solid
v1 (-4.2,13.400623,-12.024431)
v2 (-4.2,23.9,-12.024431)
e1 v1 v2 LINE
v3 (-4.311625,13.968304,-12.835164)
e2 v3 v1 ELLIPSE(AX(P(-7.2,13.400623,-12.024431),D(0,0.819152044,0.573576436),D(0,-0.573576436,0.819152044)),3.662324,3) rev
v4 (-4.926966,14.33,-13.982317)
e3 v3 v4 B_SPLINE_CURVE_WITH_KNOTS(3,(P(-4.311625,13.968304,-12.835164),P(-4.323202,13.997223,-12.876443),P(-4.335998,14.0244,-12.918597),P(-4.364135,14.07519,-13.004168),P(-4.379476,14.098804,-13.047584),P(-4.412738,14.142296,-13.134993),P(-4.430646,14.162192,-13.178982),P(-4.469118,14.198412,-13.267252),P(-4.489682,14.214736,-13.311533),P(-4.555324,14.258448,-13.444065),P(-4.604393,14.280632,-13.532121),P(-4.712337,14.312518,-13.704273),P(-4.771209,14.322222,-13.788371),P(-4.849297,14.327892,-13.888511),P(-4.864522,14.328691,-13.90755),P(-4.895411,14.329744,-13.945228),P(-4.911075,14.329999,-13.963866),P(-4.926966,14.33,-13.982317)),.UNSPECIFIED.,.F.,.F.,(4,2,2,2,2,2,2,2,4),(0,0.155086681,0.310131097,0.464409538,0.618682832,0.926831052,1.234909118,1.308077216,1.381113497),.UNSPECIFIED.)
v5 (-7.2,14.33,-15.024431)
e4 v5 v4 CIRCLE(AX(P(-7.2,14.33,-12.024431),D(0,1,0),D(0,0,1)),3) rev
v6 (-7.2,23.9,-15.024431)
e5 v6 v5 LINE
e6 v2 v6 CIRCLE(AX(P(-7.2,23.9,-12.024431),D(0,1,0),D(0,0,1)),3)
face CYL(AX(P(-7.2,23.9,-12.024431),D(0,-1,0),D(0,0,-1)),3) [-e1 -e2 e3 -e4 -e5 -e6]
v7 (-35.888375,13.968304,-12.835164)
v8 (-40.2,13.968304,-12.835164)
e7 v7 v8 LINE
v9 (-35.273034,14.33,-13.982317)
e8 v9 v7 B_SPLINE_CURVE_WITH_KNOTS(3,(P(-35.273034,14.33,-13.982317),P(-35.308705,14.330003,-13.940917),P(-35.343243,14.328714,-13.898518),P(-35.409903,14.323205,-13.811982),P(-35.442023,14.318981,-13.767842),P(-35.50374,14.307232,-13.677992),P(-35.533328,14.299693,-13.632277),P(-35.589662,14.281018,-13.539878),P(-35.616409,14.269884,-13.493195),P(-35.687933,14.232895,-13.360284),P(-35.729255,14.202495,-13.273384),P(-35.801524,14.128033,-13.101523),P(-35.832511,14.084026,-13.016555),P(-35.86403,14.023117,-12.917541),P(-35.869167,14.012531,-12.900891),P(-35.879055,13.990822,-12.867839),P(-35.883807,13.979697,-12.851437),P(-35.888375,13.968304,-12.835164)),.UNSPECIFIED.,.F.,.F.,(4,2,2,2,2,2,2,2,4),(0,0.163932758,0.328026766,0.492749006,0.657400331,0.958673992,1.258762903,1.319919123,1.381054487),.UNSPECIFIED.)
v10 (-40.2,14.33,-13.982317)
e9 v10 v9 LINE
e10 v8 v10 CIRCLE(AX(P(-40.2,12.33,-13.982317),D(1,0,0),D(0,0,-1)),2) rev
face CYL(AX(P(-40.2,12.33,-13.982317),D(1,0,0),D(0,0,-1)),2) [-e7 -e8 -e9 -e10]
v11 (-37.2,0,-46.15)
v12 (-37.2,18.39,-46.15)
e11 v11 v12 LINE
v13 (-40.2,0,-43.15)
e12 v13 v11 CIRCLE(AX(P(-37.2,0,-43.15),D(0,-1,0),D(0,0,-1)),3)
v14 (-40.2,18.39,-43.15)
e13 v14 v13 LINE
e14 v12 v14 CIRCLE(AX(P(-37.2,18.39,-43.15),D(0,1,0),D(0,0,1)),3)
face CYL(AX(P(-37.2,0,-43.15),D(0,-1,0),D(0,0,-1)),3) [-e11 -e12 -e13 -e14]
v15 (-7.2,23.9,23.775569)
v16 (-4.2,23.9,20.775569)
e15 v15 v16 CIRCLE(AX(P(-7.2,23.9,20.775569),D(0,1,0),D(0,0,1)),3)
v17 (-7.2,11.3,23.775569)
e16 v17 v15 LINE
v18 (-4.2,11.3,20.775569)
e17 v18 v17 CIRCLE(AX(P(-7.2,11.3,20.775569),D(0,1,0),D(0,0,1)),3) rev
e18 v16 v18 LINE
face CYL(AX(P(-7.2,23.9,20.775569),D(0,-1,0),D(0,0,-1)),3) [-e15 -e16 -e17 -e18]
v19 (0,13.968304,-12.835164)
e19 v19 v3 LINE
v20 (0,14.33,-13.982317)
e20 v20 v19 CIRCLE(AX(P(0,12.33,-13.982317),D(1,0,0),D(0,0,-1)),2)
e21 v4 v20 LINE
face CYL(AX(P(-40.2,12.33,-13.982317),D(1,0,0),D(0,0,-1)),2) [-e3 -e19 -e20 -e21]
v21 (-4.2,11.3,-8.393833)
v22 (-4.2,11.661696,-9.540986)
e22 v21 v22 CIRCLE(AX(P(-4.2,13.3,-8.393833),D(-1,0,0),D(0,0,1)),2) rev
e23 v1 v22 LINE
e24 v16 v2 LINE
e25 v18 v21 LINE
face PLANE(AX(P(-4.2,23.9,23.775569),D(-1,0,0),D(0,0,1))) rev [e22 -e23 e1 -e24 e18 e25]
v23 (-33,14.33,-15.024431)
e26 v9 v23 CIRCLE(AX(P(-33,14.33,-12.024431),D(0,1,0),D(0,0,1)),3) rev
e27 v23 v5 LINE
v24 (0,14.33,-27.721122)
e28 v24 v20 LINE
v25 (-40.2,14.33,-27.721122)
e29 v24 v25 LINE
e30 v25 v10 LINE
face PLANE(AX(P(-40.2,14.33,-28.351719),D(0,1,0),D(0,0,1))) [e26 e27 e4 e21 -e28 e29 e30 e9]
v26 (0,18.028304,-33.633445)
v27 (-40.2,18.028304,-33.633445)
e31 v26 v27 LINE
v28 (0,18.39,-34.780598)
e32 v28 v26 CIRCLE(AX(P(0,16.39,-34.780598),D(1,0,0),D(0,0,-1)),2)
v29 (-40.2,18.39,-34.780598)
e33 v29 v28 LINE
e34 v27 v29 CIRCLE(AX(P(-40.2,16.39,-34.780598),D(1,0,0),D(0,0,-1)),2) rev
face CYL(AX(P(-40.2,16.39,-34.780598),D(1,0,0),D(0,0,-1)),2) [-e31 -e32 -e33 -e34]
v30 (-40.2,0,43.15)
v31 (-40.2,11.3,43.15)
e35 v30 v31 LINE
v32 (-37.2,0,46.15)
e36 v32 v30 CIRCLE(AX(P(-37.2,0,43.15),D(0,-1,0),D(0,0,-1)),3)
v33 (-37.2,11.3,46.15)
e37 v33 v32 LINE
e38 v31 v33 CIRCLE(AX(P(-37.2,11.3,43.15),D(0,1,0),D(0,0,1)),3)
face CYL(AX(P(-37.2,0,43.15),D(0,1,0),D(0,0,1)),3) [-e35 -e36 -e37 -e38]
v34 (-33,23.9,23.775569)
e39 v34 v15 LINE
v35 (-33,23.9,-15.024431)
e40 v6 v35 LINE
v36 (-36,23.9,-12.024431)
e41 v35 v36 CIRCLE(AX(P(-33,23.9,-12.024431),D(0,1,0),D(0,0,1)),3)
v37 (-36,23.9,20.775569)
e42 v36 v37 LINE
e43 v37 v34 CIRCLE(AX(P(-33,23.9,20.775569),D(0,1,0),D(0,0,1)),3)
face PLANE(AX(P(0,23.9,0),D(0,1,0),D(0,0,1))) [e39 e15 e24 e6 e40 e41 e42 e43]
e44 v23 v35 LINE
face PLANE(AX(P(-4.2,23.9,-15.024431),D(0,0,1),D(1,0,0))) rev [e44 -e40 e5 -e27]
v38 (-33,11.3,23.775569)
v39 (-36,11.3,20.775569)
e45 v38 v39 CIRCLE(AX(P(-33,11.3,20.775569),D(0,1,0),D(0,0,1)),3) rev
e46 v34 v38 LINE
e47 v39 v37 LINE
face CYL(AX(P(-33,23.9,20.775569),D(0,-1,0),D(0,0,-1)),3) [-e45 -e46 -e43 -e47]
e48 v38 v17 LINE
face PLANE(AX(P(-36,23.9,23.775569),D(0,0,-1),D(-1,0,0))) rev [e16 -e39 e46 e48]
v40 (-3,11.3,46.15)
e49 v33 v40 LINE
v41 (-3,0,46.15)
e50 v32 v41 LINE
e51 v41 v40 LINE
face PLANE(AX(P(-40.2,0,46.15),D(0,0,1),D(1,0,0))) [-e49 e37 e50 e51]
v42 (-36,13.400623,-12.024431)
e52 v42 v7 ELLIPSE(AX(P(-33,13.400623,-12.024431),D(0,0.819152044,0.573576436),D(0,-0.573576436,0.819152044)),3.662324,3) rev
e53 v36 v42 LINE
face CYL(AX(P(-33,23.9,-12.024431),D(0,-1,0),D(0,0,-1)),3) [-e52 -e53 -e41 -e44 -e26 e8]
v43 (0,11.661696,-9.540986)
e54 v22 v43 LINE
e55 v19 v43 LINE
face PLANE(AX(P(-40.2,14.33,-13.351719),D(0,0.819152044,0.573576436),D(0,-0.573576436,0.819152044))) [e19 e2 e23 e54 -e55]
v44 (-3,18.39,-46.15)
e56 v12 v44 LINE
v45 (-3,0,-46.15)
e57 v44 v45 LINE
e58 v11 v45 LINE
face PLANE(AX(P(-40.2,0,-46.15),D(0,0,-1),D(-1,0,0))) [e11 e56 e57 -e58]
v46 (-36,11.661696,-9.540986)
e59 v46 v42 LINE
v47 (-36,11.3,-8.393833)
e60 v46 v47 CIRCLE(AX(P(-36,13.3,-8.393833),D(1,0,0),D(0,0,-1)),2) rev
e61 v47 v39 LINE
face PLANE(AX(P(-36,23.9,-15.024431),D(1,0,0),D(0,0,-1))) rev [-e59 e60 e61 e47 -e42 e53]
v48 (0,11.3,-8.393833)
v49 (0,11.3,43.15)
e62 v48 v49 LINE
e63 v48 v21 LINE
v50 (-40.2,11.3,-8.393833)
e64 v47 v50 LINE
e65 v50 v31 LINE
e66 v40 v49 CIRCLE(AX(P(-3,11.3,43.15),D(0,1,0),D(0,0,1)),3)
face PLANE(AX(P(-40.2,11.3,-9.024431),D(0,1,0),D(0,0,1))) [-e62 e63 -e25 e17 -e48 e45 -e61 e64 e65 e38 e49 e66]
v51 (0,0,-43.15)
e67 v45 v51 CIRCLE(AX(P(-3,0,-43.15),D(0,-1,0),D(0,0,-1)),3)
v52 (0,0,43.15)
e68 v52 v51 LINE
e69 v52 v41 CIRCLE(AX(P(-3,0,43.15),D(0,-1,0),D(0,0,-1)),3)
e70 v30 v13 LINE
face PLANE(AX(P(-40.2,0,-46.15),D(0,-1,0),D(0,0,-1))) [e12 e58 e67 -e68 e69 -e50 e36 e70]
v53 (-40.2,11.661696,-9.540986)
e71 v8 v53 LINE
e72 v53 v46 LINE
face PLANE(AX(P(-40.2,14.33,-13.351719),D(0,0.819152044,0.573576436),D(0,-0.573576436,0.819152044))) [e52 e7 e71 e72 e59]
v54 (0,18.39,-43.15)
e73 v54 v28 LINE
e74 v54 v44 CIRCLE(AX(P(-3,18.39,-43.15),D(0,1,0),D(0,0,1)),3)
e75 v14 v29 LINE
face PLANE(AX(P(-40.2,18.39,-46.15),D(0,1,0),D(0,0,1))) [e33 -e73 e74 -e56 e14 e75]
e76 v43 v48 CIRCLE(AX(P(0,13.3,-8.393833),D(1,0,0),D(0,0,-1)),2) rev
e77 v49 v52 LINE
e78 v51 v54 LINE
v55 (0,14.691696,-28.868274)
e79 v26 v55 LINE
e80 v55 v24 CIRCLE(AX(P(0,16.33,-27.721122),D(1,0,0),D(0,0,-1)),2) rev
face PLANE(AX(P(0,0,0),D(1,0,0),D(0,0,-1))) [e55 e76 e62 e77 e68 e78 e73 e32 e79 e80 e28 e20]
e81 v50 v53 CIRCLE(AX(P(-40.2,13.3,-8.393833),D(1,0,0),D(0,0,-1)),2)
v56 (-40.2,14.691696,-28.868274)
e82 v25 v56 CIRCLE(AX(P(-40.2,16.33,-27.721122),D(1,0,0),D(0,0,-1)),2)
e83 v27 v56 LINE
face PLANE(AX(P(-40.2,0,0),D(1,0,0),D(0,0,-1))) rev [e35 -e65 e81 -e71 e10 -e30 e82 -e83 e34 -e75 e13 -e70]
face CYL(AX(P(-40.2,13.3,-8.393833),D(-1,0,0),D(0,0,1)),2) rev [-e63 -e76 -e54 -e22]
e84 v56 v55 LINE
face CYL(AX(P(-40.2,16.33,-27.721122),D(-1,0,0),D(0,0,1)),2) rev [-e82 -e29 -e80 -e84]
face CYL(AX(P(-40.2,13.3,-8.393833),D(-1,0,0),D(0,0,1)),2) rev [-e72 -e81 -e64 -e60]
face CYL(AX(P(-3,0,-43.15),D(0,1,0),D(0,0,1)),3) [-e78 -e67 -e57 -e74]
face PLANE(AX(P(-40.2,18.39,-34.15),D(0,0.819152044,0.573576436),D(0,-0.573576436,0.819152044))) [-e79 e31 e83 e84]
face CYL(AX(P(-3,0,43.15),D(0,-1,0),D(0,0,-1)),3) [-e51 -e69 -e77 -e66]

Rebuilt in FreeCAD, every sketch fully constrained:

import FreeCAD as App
import Part
import Sketcher
Q = App.Units.Quantity


def edges_at(feature, points):
    """Names of the edges that pass closest to the given points."""
    edges = feature.Shape.Edges
    near = lambda p: min(range(len(edges)), key=lambda i: edges[i].distToShape(Part.Vertex(*p))[0])
    return sorted({f"Edge{near(p) + 1}" for p in points})


def add_polygon(sketch, points):
    """Adds a closed chain of lines whose ends are joined by coincident constraints."""
    first, n = sketch.GeometryCount, len(points)
    for a, b in zip(points, points[1:] + points[:1]):
        sketch.addGeometry(Part.LineSegment(App.Vector(*a, 0), App.Vector(*b, 0)), False)
    for i in range(n):
        sketch.addConstraint(Sketcher.Constraint("Coincident", first + i, 2, first + (i + 1) % n, 1))

doc = App.newDocument("Part")
body = doc.addObject("PartDesign::Body", "Body")

# Sketch on YZ plane
sketch1 = doc.addObject("Sketcher::SketchObject", "Sketch")
body.addObject(sketch1)
sketch1.AttachmentSupport = (doc.YZ_Plane, [""])
sketch1.MapMode = "FlatFace"
add_polygon(sketch1, [(0, 46.15), (0, -46.15), (18.39, -46.15), (18.39, -34.15), (14.33, -28.351719), (14.33, -13.351719), (11.3, -9.024431), (11.3, 46.15)])  # lines 0-7
sketch1.addConstraint([
    Sketcher.Constraint("Vertical", 0),
    Sketcher.Constraint("Horizontal", 1),
    Sketcher.Constraint("Vertical", 2),
    Sketcher.Constraint("Vertical", 4),
    Sketcher.Constraint("Vertical", 6),
    Sketcher.Constraint("Horizontal", 7),
    Sketcher.Constraint("Symmetric", 0, 2, 7, 2, -1, 1),
    Sketcher.Constraint("Parallel", 3, 5),
    Sketcher.Constraint("DistanceY", 2, 1, 2, 2, Q("12 mm")),
    Sketcher.Constraint("DistanceY", 4, 1, 4, 2, Q("15 mm")),
    Sketcher.Constraint("Angle", 3, Q("125 deg")),
    Sketcher.Constraint("DistanceX", 7, 2, 7, 1, Q("11.3 mm")),
    Sketcher.Constraint("DistanceY", 0, 2, 0, 1, Q("92.3 mm")),
    Sketcher.Constraint("DistanceX", 1, 1, 1, 2, Q("18.39 mm")),
    Sketcher.Constraint("DistanceX", -1, 1, 3, 2, Q("14.33 mm")),
])
pad1 = doc.addObject("PartDesign::Pad", "Pad")
body.addObject(pad1)
pad1.Profile = sketch1
pad1.Length = 40.2
pad1.Reversed = True

# Sketch on XZ plane
sketch2 = doc.addObject("Sketcher::SketchObject", "Sketch001")
body.addObject(sketch2)
sketch2.AttachmentSupport = (doc.XZ_Plane, [""])
sketch2.MapMode = "FlatFace"
sketch2.AttachmentOffset = App.Placement(App.Vector(0, 0, -11.3), App.Rotation())
add_polygon(sketch2, [(-36, -15.024431), (-36, 23.775569), (-4.2, 23.775569), (-4.2, -15.024431)])  # lines 0-3
sketch2.addConstraint([
    Sketcher.Constraint("Vertical", 0),
    Sketcher.Constraint("Horizontal", 1),
    Sketcher.Constraint("Vertical", 2),
    Sketcher.Constraint("Horizontal", 3),
    Sketcher.Constraint("DistanceX", 1, 1, 1, 2, Q("31.8 mm")),
    Sketcher.Constraint("DistanceY", 0, 1, 0, 2, Q("38.8 mm")),
    Sketcher.Constraint("DistanceX", 0, 2, -1, 1, Q("36 mm")),
    Sketcher.Constraint("DistanceY", -1, 1, 0, 2, Q("23.775569 mm")),
])
pad2 = doc.addObject("PartDesign::Pad", "Pad001")
body.addObject(pad2)
pad2.Profile = sketch2
pad2.Length = 12.6
pad2.Reversed = True
doc.recompute()

fillet = doc.addObject("PartDesign::Fillet", "Fillet")
body.addObject(fillet)
fillet.Base = (pad2, edges_at(pad2, [
    (-36, 19.115, -15.024),
    (-4.2, 19.115, -15.024),
    (-36, 17.6, 23.776),
    (-4.2, 17.6, 23.776),
]))
fillet.Radius = 3
doc.recompute()

fillet2 = doc.addObject("PartDesign::Fillet", "Fillet001")
body.addObject(fillet2)
fillet2.Base = (fillet, edges_at(fillet, [
    (0, 9.195, -46.15),
    (0, 5.65, 46.15),
    (-40.2, 9.195, -46.15),
    (-40.2, 5.65, 46.15),
]))
fillet2.Radius = 3
doc.recompute()

fillet3 = doc.addObject("PartDesign::Fillet", "Fillet002")
body.addObject(fillet3)
fillet3.Base = (fillet2, edges_at(fillet2, [
    (-38.1, 11.3, -9.024),
    (-2.1, 11.3, -9.024),
    (-37.945, 14.33, -13.352),
    (-2.255, 14.33, -13.352),
    (-20.1, 14.33, -28.352),
    (-20.1, 18.39, -34.15),
]))
fillet3.Radius = 2

doc.recompute()
